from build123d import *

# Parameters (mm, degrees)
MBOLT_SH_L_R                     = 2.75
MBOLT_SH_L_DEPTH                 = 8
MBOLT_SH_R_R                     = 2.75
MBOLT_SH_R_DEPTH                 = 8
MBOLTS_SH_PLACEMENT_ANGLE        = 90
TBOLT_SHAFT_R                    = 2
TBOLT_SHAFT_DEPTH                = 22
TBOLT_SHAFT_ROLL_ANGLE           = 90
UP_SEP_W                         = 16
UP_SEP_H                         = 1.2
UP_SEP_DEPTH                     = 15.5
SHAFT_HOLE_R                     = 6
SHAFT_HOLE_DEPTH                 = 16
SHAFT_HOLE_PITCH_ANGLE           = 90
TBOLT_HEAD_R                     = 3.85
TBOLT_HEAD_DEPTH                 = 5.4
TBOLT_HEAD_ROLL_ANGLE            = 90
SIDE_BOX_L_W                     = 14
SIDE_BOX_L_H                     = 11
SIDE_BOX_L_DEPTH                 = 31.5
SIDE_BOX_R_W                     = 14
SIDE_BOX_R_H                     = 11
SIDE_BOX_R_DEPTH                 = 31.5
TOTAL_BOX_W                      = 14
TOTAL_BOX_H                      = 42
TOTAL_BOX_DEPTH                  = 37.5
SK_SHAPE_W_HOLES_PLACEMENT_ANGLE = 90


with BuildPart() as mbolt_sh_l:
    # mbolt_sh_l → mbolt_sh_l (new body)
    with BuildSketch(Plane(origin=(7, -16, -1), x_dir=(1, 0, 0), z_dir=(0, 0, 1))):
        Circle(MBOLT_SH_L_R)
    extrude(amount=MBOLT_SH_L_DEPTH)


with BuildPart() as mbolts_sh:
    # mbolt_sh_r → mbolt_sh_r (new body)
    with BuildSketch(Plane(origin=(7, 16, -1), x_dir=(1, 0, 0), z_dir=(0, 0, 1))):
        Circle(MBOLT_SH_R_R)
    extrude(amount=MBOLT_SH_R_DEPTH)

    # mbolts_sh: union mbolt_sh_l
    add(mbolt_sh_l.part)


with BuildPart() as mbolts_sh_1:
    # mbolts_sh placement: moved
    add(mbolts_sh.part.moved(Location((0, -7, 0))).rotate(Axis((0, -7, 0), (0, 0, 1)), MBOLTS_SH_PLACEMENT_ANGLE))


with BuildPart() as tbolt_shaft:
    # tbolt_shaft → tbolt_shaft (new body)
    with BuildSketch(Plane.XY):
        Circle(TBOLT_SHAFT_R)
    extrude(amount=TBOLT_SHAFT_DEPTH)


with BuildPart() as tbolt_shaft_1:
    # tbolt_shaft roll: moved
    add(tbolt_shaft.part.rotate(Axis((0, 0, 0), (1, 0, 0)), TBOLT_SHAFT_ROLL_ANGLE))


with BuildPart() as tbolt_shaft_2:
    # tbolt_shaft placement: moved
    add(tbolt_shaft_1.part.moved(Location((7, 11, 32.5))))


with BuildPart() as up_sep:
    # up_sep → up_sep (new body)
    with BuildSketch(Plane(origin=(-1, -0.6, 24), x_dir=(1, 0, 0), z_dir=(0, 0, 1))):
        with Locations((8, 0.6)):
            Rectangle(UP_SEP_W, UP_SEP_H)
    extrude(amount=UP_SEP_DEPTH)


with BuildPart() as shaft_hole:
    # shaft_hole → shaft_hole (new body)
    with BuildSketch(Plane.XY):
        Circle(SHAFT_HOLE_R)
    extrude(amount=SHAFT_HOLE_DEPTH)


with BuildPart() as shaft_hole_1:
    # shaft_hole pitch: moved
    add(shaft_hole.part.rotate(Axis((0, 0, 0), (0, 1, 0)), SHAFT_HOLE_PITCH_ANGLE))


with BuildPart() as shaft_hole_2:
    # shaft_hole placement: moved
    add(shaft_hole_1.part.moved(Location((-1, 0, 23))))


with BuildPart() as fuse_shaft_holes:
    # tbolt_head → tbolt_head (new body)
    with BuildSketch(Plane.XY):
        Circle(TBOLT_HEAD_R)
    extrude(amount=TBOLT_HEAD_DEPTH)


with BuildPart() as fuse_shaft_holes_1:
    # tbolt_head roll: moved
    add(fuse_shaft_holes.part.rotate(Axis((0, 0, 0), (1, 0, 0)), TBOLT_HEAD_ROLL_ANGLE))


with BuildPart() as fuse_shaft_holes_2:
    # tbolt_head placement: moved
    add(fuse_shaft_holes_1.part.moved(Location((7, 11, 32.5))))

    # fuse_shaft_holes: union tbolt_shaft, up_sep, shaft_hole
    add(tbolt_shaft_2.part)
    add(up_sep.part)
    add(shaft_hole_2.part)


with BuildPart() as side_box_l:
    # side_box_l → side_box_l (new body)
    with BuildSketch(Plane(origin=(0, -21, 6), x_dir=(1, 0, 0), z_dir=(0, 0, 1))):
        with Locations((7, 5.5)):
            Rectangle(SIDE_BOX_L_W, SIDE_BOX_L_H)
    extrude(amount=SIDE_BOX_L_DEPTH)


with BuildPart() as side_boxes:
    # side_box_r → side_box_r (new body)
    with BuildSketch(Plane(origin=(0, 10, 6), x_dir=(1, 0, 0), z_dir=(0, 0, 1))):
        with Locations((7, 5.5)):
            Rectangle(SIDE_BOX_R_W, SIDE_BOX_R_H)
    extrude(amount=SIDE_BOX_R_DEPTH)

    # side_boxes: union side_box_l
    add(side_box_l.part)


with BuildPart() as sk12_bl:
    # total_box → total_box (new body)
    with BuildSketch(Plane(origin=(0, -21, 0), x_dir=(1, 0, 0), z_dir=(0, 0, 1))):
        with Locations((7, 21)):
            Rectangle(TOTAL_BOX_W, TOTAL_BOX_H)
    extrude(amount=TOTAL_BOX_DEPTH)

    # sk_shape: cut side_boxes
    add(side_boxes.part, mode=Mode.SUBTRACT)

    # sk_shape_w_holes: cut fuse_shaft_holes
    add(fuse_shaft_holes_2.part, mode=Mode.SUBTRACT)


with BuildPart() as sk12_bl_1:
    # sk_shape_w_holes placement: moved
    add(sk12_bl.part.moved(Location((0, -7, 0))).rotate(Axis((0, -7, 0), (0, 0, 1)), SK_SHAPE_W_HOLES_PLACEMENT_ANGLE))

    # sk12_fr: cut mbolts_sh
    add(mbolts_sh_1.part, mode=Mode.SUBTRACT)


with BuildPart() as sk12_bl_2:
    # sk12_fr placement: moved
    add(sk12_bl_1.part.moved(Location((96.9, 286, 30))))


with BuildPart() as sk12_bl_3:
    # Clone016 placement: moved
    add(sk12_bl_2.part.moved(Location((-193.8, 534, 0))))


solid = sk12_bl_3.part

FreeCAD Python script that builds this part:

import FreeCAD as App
import Part
import Sketcher
Q = App.Units.Quantity

doc = App.newDocument("Part")
body = doc.addObject("PartDesign::Body", "Body")

# Sketch on XY plane
sketch1 = body.newObject("Sketcher::SketchObject", "Sketch")
sketch1.AttachmentSupport = (doc.getObject("XY_Plane"), [""])
sketch1.MapMode = "FlatFace"
sketch1.AttachmentOffset = App.Placement(App.Vector(0, 0, -1), App.Rotation())
sketch1.addGeometry(Part.Circle(App.Vector(7, -16, 0), App.Vector(0, 0, 1), 2.8), False)
sketch1.addConstraint(Sketcher.Constraint("Diameter", 0, Q("5.5 mm")))
sketch1.addConstraint(Sketcher.Constraint("DistanceX", -1, 1, 0, 3, Q("7 mm")))
sketch1.addConstraint(Sketcher.Constraint("DistanceY", 0, 3, -1, 1, Q("16 mm")))
pad1 = body.newObject("PartDesign::Pad", "Pad")
pad1.Profile = sketch1
pad1.Length = 8
body2 = doc.addObject("PartDesign::Body", "Body001")
body2.AllowCompound = True

# Sketch on XY plane
sketch2 = body2.newObject("Sketcher::SketchObject", "Sketch001")
sketch2.AttachmentSupport = (doc.getObject("XY_Plane001"), [""])
sketch2.MapMode = "FlatFace"
sketch2.AttachmentOffset = App.Placement(App.Vector(0, 0, -1), App.Rotation())
sketch2.addGeometry(Part.Circle(App.Vector(7, 16, 0), App.Vector(0, 0, 1), 2.8), False)
sketch2.addConstraint(Sketcher.Constraint("Diameter", 0, Q("5.5 mm")))
sketch2.addConstraint(Sketcher.Constraint("DistanceX", -1, 1, 0, 3, Q("7 mm")))
sketch2.addConstraint(Sketcher.Constraint("DistanceY", -1, 1, 0, 3, Q("16 mm")))
pad2 = body2.newObject("PartDesign::Pad", "Pad001")
pad2.Profile = sketch2
pad2.Length = 8
doc.recompute()

boolean = body2.newObject("PartDesign::Boolean", "Boolean")
boolean.Type = "Fuse"
boolean.addObjects([body])
body3 = doc.addObject("PartDesign::Body", "Body002")
body3.AllowCompound = True
doc.recompute()

body2.Placement = App.Placement(App.Vector(0, -7, 0), App.Rotation(App.Vector(0, 0, 1), 90))
boolean2 = body3.newObject("PartDesign::Boolean", "Boolean001")
boolean2.Type = "Fuse"
boolean2.addObjects([body2])
body4 = doc.addObject("PartDesign::Body", "Body003")

# Sketch on XY plane
sketch3 = body4.newObject("Sketcher::SketchObject", "Sketch002")
sketch3.AttachmentSupport = (doc.getObject("XY_Plane003"), [""])
sketch3.MapMode = "FlatFace"
sketch3.addGeometry(Part.Circle(App.Vector(0, 0, 0), App.Vector(0, 0, 1), 2), False)
sketch3.addConstraint(Sketcher.Constraint("Coincident", 0, 3, -1, 1))
sketch3.addConstraint(Sketcher.Constraint("Diameter", 0, Q("4 mm")))
pad3 = body4.newObject("PartDesign::Pad", "Pad002")
pad3.Profile = sketch3
pad3.Length = 22
body5 = doc.addObject("PartDesign::Body", "Body004")
doc.recompute()

body4.Placement = App.Placement(App.Vector(0, 0, 0), App.Rotation(App.Vector(1, 0, 0), 90))
boolean3 = body5.newObject("PartDesign::Boolean", "Boolean002")
boolean3.Type = "Fuse"
boolean3.addObjects([body4])
body6 = doc.addObject("PartDesign::Body", "Body005")
doc.recompute()

body5.Placement = App.Placement(App.Vector(7, 11, 32.5), App.Rotation(App.Vector(0, 0, 1), 0))
boolean4 = body6.newObject("PartDesign::Boolean", "Boolean003")
boolean4.Type = "Fuse"
boolean4.addObjects([body5])
body7 = doc.addObject("PartDesign::Body", "Body006")

# Sketch on XY plane
sketch4 = body7.newObject("Sketcher::SketchObject", "Sketch003")
sketch4.AttachmentSupport = (doc.getObject("XY_Plane006"), [""])
sketch4.MapMode = "FlatFace"
sketch4.AttachmentOffset = App.Placement(App.Vector(0, 0, 24), App.Rotation())
sketch4.addGeometry(Part.LineSegment(App.Vector(-1, 0.6, 0), App.Vector(-1, -0.6, 0)), False)
sketch4.addGeometry(Part.LineSegment(App.Vector(-1, -0.6, 0), App.Vector(15, -0.6, 0)), False)
sketch4.addGeometry(Part.LineSegment(App.Vector(15, -0.6, 0), App.Vector(15, 0.6, 0)), False)
sketch4.addGeometry(Part.LineSegment(App.Vector(15, 0.6, 0), App.Vector(-1, 0.6, 0)), False)
sketch4.addConstraint(Sketcher.Constraint("Coincident", 0, 2, 1, 1))
sketch4.addConstraint(Sketcher.Constraint("Coincident", 1, 2, 2, 1))
sketch4.addConstraint(Sketcher.Constraint("Coincident", 2, 2, 3, 1))
sketch4.addConstraint(Sketcher.Constraint("Coincident", 3, 2, 0, 1))
sketch4.addConstraint(Sketcher.Constraint("Vertical", 0))
sketch4.addConstraint(Sketcher.Constraint("Horizontal", 1))
sketch4.addConstraint(Sketcher.Constraint("Vertical", 2))
sketch4.addConstraint(Sketcher.Constraint("Horizontal", 3))
sketch4.addConstraint(Sketcher.Constraint("DistanceX", 1, 1, 1, 2, Q("16 mm")))
sketch4.addConstraint(Sketcher.Constraint("DistanceY", 0, 2, 0, 1, Q("1.2 mm")))
sketch4.addConstraint(Sketcher.Constraint("DistanceX", 0, 2, -1, 1, Q("1 mm")))
sketch4.addConstraint(Sketcher.Constraint("DistanceY", 0, 2, -1, 1, Q("0.6 mm")))
pad4 = body7.newObject("PartDesign::Pad", "Pad003")
pad4.Profile = sketch4
pad4.Length = 15.5
body8 = doc.addObject("PartDesign::Body", "Body007")

# Sketch on XY plane
sketch5 = body8.newObject("Sketcher::SketchObject", "Sketch004")
sketch5.AttachmentSupport = (doc.getObject("XY_Plane007"), [""])
sketch5.MapMode = "FlatFace"
sketch5.addGeometry(Part.Circle(App.Vector(0, 0, 0), App.Vector(0, 0, 1), 6), False)
sketch5.addConstraint(Sketcher.Constraint("Coincident", 0, 3, -1, 1))
sketch5.addConstraint(Sketcher.Constraint("Diameter", 0, Q("12 mm")))
pad5 = body8.newObject("PartDesign::Pad", "Pad004")
pad5.Profile = sketch5
pad5.Length = 16
body9 = doc.addObject("PartDesign::Body", "Body008")
doc.recompute()

body8.Placement = App.Placement(App.Vector(0, 0, 0), App.Rotation(App.Vector(0, 1, 0), 90))
boolean5 = body9.newObject("PartDesign::Boolean", "Boolean004")
boolean5.Type = "Fuse"
boolean5.addObjects([body8])
body10 = doc.addObject("PartDesign::Body", "Body009")
doc.recompute()

body9.Placement = App.Placement(App.Vector(-1, 0, 23), App.Rotation(App.Vector(0, 0, 1), 0))
boolean6 = body10.newObject("PartDesign::Boolean", "Boolean005")
boolean6.Type = "Fuse"
boolean6.addObjects([body9])
body11 = doc.addObject("PartDesign::Body", "Body010")

# Sketch on XY plane
sketch6 = body11.newObject("Sketcher::SketchObject", "Sketch005")
sketch6.AttachmentSupport = (doc.getObject("XY_Plane010"), [""])
sketch6.MapMode = "FlatFace"
sketch6.addGeometry(Part.Circle(App.Vector(0, 0, 0), App.Vector(0, 0, 1), 3.9), False)
sketch6.addConstraint(Sketcher.Constraint("Coincident", 0, 3, -1, 1))
sketch6.addConstraint(Sketcher.Constraint("Diameter", 0, Q("7.7 mm")))
pad6 = body11.newObject("PartDesign::Pad", "Pad005")
pad6.Profile = sketch6
pad6.Length = 5.4
body12 = doc.addObject("PartDesign::Body", "Body011")
doc.recompute()

body11.Placement = App.Placement(App.Vector(0, 0, 0), App.Rotation(App.Vector(1, 0, 0), 90))
boolean7 = body12.newObject("PartDesign::Boolean", "Boolean006")
boolean7.Type = "Fuse"
boolean7.addObjects([body11])
body13 = doc.addObject("PartDesign::Body", "Body012")
doc.recompute()

body12.Placement = App.Placement(App.Vector(7, 11, 32.5), App.Rotation(App.Vector(0, 0, 1), 0))
boolean8 = body13.newObject("PartDesign::Boolean", "Boolean007")
boolean8.Type = "Fuse"
boolean8.addObjects([body12])
doc.recompute()

boolean9 = body13.newObject("PartDesign::Boolean", "Boolean008")
boolean9.Type = "Fuse"
boolean9.addObjects([body6])
doc.recompute()

boolean10 = body13.newObject("PartDesign::Boolean", "Boolean009")
boolean10.Type = "Fuse"
boolean10.addObjects([body7])
doc.recompute()

boolean11 = body13.newObject("PartDesign::Boolean", "Boolean010")
boolean11.Type = "Fuse"
boolean11.addObjects([body10])
body14 = doc.addObject("PartDesign::Body", "Body013")

# Sketch on XY plane
sketch7 = body14.newObject("Sketcher::SketchObject", "Sketch006")
sketch7.AttachmentSupport = (doc.getObject("XY_Plane013"), [""])
sketch7.MapMode = "FlatFace"
sketch7.AttachmentOffset = App.Placement(App.Vector(0, 0, 6), App.Rotation())
sketch7.addGeometry(Part.LineSegment(App.Vector(0, -10, 0), App.Vector(0, -21, 0)), False)
sketch7.addGeometry(Part.LineSegment(App.Vector(0, -21, 0), App.Vector(14, -21, 0)), False)
sketch7.addGeometry(Part.LineSegment(App.Vector(14, -21, 0), App.Vector(14, -10, 0)), False)
sketch7.addGeometry(Part.LineSegment(App.Vector(14, -10, 0), App.Vector(0, -10, 0)), False)
sketch7.addConstraint(Sketcher.Constraint("Coincident", 0, 2, 1, 1))
sketch7.addConstraint(Sketcher.Constraint("Coincident", 1, 2, 2, 1))
sketch7.addConstraint(Sketcher.Constraint("Coincident", 2, 2, 3, 1))
sketch7.addConstraint(Sketcher.Constraint("Coincident", 3, 2, 0, 1))
sketch7.addConstraint(Sketcher.Constraint("Vertical", 0))
sketch7.addConstraint(Sketcher.Constraint("Horizontal", 1))
sketch7.addConstraint(Sketcher.Constraint("Vertical", 2))
sketch7.addConstraint(Sketcher.Constraint("Horizontal", 3))
sketch7.addConstraint(Sketcher.Constraint("PointOnObject", 0, 2, -2))
sketch7.addConstraint(Sketcher.Constraint("DistanceX", 1, 1, 1, 2, Q("14 mm")))
sketch7.addConstraint(Sketcher.Constraint("DistanceY", 0, 2, 0, 1, Q("11 mm")))
sketch7.addConstraint(Sketcher.Constraint("DistanceY", 0, 2, -1, 1, Q("21 mm")))
pad7 = body14.newObject("PartDesign::Pad", "Pad006")
pad7.Profile = sketch7
pad7.Length = 31.5
body15 = doc.addObject("PartDesign::Body", "Body014")
body15.AllowCompound = True

# Sketch on XY plane
sketch8 = body15.newObject("Sketcher::SketchObject", "Sketch007")
sketch8.AttachmentSupport = (doc.getObject("XY_Plane014"), [""])
sketch8.MapMode = "FlatFace"
sketch8.AttachmentOffset = App.Placement(App.Vector(0, 0, 6), App.Rotation())
sketch8.addGeometry(Part.LineSegment(App.Vector(0, 21, 0), App.Vector(0, 10, 0)), False)
sketch8.addGeometry(Part.LineSegment(App.Vector(0, 10, 0), App.Vector(14, 10, 0)), False)
sketch8.addGeometry(Part.LineSegment(App.Vector(14, 10, 0), App.Vector(14, 21, 0)), False)
sketch8.addGeometry(Part.LineSegment(App.Vector(14, 21, 0), App.Vector(0, 21, 0)), False)
sketch8.addConstraint(Sketcher.Constraint("Coincident", 0, 2, 1, 1))
sketch8.addConstraint(Sketcher.Constraint("Coincident", 1, 2, 2, 1))
sketch8.addConstraint(Sketcher.Constraint("Coincident", 2, 2, 3, 1))
sketch8.addConstraint(Sketcher.Constraint("Coincident", 3, 2, 0, 1))
sketch8.addConstraint(Sketcher.Constraint("Vertical", 0))
sketch8.addConstraint(Sketcher.Constraint("Horizontal", 1))
sketch8.addConstraint(Sketcher.Constraint("Vertical", 2))
sketch8.addConstraint(Sketcher.Constraint("Horizontal", 3))
sketch8.addConstraint(Sketcher.Constraint("PointOnObject", 0, 2, -2))
sketch8.addConstraint(Sketcher.Constraint("DistanceX", 1, 1, 1, 2, Q("14 mm")))
sketch8.addConstraint(Sketcher.Constraint("DistanceY", 0, 2, 0, 1, Q("11 mm")))
sketch8.addConstraint(Sketcher.Constraint("DistanceY", -1, 1, 0, 2, Q("10 mm")))
pad8 = body15.newObject("PartDesign::Pad", "Pad007")
pad8.Profile = sketch8
pad8.Length = 31.5
doc.recompute()

boolean12 = body15.newObject("PartDesign::Boolean", "Boolean011")
boolean12.Type = "Fuse"
boolean12.addObjects([body14])
body16 = doc.addObject("PartDesign::Body", "Body015")

# Sketch on XY plane
sketch9 = body16.newObject("Sketcher::SketchObject", "Sketch008")
sketch9.AttachmentSupport = (doc.getObject("XY_Plane015"), [""])
sketch9.MapMode = "FlatFace"
sketch9.addGeometry(Part.LineSegment(App.Vector(0, 21, 0), App.Vector(0, -21, 0)), False)
sketch9.addGeometry(Part.LineSegment(App.Vector(0, -21, 0), App.Vector(14, -21, 0)), False)
sketch9.addGeometry(Part.LineSegment(App.Vector(14, -21, 0), App.Vector(14, 21, 0)), False)
sketch9.addGeometry(Part.LineSegment(App.Vector(14, 21, 0), App.Vector(0, 21, 0)), False)
sketch9.addConstraint(Sketcher.Constraint("Coincident", 0, 2, 1, 1))
sketch9.addConstraint(Sketcher.Constraint("Coincident", 1, 2, 2, 1))
sketch9.addConstraint(Sketcher.Constraint("Coincident", 2, 2, 3, 1))
sketch9.addConstraint(Sketcher.Constraint("Coincident", 3, 2, 0, 1))
sketch9.addConstraint(Sketcher.Constraint("Vertical", 0))
sketch9.addConstraint(Sketcher.Constraint("Horizontal", 1))
sketch9.addConstraint(Sketcher.Constraint("Vertical", 2))
sketch9.addConstraint(Sketcher.Constraint("Horizontal", 3))
sketch9.addConstraint(Sketcher.Constraint("Symmetric", 0, 2, 3, 2, -1, 1))
sketch9.addConstraint(Sketcher.Constraint("DistanceX", 1, 1, 1, 2, Q("14 mm")))
sketch9.addConstraint(Sketcher.Constraint("DistanceY", 0, 2, 0, 1, Q("42 mm")))
pad9 = body16.newObject("PartDesign::Pad", "Pad008")
pad9.Profile = sketch9
pad9.Length = 37.5
doc.recompute()

boolean13 = body16.newObject("PartDesign::Boolean", "Boolean012")
boolean13.Type = "Cut"
boolean13.addObjects([body15])
doc.recompute()

boolean14 = body16.newObject("PartDesign::Boolean", "Boolean013")
boolean14.Type = "Cut"
boolean14.addObjects([body13])
body17 = doc.addObject("PartDesign::Body", "Body016")
doc.recompute()

body16.Placement = App.Placement(App.Vector(0, -7, 0), App.Rotation(App.Vector(0, 0, 1), 90))
boolean15 = body17.newObject("PartDesign::Boolean", "Boolean014")
boolean15.Type = "Fuse"
boolean15.addObjects([body16])
doc.recompute()

boolean16 = body17.newObject("PartDesign::Boolean", "Boolean015")
boolean16.Type = "Cut"
boolean16.addObjects([body3])
body18 = doc.addObject("PartDesign::Body", "Body017")
doc.recompute()

body17.Placement = App.Placement(App.Vector(96.9, 286, 30), App.Rotation(App.Vector(0, 0, 1), 0))
boolean17 = body18.newObject("PartDesign::Boolean", "Boolean016")
boolean17.Type = "Fuse"
boolean17.addObjects([body17])
body19 = doc.addObject("PartDesign::Body", "Body018")
doc.recompute()

body18.Placement = App.Placement(App.Vector(-193.8, 534, 0), App.Rotation(App.Vector(0, 0, 1), 0))
boolean18 = body19.newObject("PartDesign::Boolean", "Boolean017")
boolean18.Type = "Fuse"
boolean18.addObjects([body18])

doc.recompute()
